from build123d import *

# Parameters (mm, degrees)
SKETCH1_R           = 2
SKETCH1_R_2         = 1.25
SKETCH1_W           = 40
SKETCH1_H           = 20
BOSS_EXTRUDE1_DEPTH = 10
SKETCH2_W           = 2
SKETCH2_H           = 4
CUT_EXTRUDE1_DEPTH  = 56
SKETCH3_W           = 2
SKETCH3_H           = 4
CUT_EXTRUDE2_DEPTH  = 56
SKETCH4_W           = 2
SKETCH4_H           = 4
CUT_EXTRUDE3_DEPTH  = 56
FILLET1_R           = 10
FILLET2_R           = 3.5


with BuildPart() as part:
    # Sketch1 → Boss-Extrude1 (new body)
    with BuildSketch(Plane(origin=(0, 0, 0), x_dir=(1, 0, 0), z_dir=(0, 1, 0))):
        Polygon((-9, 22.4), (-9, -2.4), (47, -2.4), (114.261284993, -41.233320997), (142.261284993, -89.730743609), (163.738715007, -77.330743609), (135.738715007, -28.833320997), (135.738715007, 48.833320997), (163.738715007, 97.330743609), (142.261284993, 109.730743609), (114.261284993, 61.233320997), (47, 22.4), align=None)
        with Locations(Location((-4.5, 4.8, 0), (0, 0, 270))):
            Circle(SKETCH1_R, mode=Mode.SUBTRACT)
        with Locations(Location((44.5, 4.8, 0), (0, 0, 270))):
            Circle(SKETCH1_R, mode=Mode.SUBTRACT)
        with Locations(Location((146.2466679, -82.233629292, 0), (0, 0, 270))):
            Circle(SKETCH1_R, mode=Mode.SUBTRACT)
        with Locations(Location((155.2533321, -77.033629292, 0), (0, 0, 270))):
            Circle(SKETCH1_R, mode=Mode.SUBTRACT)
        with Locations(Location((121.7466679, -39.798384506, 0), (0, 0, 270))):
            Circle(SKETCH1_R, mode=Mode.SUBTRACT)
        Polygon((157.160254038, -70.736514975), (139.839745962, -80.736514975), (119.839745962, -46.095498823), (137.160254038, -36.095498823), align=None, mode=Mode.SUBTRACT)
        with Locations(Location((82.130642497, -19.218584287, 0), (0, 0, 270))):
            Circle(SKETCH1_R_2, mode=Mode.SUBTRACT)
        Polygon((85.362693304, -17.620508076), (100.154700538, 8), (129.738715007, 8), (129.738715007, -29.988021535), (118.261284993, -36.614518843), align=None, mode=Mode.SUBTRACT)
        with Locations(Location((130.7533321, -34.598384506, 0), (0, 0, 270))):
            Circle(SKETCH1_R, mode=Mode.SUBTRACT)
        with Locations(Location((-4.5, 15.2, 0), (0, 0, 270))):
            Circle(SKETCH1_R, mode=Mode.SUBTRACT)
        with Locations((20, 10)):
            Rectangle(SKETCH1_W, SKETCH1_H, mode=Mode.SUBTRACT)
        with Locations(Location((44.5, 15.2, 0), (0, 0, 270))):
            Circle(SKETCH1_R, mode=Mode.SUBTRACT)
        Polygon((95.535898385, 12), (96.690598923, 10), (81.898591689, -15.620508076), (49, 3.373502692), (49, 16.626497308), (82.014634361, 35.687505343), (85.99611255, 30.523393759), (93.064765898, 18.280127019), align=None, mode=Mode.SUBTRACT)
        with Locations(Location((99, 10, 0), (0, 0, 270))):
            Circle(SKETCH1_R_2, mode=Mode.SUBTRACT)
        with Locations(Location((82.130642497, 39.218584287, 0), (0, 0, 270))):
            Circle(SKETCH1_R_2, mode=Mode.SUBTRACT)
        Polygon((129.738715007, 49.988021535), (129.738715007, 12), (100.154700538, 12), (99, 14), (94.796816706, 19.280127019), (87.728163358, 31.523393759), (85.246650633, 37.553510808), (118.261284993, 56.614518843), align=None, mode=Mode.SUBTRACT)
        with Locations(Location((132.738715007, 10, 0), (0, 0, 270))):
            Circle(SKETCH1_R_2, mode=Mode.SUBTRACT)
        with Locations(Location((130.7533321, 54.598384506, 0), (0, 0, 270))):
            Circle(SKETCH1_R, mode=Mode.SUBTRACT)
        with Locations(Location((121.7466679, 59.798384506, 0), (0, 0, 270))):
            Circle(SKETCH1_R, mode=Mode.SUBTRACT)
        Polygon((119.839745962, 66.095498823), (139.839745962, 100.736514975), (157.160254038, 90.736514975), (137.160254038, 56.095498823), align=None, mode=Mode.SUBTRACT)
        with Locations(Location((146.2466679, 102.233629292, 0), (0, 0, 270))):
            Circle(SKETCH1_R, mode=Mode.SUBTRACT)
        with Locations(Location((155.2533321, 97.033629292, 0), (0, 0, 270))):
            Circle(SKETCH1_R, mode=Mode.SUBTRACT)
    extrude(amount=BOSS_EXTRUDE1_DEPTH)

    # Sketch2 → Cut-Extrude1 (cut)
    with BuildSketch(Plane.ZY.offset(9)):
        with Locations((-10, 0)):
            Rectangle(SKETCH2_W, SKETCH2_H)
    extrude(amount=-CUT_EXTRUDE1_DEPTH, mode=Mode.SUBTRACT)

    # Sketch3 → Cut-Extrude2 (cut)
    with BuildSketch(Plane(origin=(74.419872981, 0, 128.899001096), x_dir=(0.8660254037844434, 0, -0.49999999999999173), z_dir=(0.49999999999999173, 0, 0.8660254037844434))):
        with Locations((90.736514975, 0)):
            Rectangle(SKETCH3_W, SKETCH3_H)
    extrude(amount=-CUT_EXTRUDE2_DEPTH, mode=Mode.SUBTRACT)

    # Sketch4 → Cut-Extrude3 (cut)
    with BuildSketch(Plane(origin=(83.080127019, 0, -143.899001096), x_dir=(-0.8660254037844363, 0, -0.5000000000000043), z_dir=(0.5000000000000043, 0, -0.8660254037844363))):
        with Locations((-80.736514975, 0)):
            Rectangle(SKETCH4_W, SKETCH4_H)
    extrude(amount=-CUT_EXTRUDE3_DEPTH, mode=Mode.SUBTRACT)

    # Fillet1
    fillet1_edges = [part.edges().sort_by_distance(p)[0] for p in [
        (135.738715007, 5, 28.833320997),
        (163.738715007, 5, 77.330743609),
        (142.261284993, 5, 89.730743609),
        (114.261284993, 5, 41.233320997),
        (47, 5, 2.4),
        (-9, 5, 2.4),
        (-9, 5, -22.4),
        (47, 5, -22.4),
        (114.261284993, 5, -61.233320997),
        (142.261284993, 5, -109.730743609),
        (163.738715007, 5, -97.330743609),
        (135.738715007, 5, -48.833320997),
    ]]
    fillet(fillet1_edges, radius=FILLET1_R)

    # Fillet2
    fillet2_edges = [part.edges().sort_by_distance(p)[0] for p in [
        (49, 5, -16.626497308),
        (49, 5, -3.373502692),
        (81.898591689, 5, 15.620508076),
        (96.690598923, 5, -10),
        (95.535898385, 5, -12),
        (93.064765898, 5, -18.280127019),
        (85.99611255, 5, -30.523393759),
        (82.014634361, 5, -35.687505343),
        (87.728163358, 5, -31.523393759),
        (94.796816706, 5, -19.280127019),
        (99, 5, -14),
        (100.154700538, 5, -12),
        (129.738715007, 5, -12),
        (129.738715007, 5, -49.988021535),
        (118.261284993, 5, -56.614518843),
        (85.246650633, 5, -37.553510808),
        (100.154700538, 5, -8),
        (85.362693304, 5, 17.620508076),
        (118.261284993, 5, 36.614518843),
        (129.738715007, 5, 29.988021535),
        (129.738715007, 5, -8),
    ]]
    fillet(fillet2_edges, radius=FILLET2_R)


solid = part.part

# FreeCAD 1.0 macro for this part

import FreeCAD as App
import Part
import Sketcher

V = App.Vector
Q = App.Units.Quantity


def edges_at(feature, points):
    """Names of the edges that pass closest to the given points."""
    edges = feature.Shape.Edges
    near = lambda p: min(range(len(edges)), key=lambda i: edges[i].distToShape(Part.Vertex(*p))[0])
    return sorted({f"Edge{near(p) + 1}" for p in points})


def add_polygon(sketch, points):
    """Adds a closed chain of lines whose ends are joined by coincident constraints."""
    first, n = sketch.GeometryCount, len(points)
    for a, b in zip(points, points[1:] + points[:1]):
        sketch.addGeometry(Part.LineSegment(App.Vector(*a, 0), App.Vector(*b, 0)), False)
    for i in range(n):
        sketch.addConstraint(Sketcher.Constraint("Coincident", first + i, 2, first + (i + 1) % n, 1))

doc = App.newDocument("Part")
body = doc.addObject("PartDesign::Body", "Body")

sketch1 = doc.addObject("Sketcher::SketchObject", "Sketch")
body.addObject(sketch1)
sketch1.AttachmentSupport = (doc.XZ_Plane, [""])
sketch1.MapMode = "FlatFace"
add_polygon(sketch1, [(-9, -22.4), (-9, 2.4), (47, 2.4), (114.3, 41.2), (142.3, 89.7), (163.7, 77.3), (135.7, 28.8), (135.7, -48.8), (163.7, -97.3), (142.3, -109.7), (114.3, -61.2), (47, -22.4)])
sketch1.addGeometry(Part.Circle(V(-4.5, -4.8, 0), V(0, 0, 1), 2), False)
sketch1.addGeometry(Part.Circle(V(44.5, -4.8, 0), V(0, 0, 1), 2), False)
sketch1.addGeometry(Part.Circle(V(146.2, 82.2, 0), V(0, 0, 1), 2), False)
sketch1.addGeometry(Part.Circle(V(155.3, 77, 0), V(0, 0, 1), 2), False)
sketch1.addGeometry(Part.Circle(V(121.7, 39.8, 0), V(0, 0, 1), 2), False)
add_polygon(sketch1, [(137.2, 36.1), (157.2, 70.7), (139.8, 80.7), (119.8, 46.1)])
sketch1.addGeometry(Part.Circle(V(82.1, 19.2, 0), V(0, 0, 1), 1.2), False)
add_polygon(sketch1, [(118.3, 36.6), (85.4, 17.6), (100.2, -8), (129.7, -8), (129.7, 30)])
sketch1.addGeometry(Part.Circle(V(130.8, 34.6, 0), V(0, 0, 1), 2), False)
sketch1.addGeometry(Part.Circle(V(-4.5, -15.2, 0), V(0, 0, 1), 2), False)
add_polygon(sketch1, [(40, 0), (0, 0), (0, -20), (40, -20)])
sketch1.addGeometry(Part.Circle(V(44.5, -15.2, 0), V(0, 0, 1), 2), False)
add_polygon(sketch1, [(93.1, -18.3), (95.5, -12), (96.7, -10), (81.9, 15.6), (49, -3.4), (49, -16.6), (82, -35.7), (86, -30.5)])
sketch1.addGeometry(Part.Circle(V(99, -10, 0), V(0, 0, 1), 1.2), False)
sketch1.addGeometry(Part.Circle(V(82.1, -39.2, 0), V(0, 0, 1), 1.2), False)
add_polygon(sketch1, [(118.3, -56.6), (129.7, -50), (129.7, -12), (100.2, -12), (99, -14), (94.8, -19.3), (87.7, -31.5), (85.2, -37.6)])
sketch1.addGeometry(Part.Circle(V(132.7, -10, 0), V(0, 0, 1), 1.2), False)
sketch1.addGeometry(Part.Circle(V(130.8, -54.6, 0), V(0, 0, 1), 2), False)
sketch1.addGeometry(Part.Circle(V(121.7, -59.8, 0), V(0, 0, 1), 2), False)
add_polygon(sketch1, [(137.2, -56.1), (119.8, -66.1), (139.8, -100.7), (157.2, -90.7)])
sketch1.addGeometry(Part.Circle(V(146.2, -102.2, 0), V(0, 0, 1), 2), False)
sketch1.addGeometry(Part.Circle(V(155.3, -97, 0), V(0, 0, 1), 2), False)
sketch1.addConstraint([
    Sketcher.Constraint("Vertical", 0),
    Sketcher.Constraint("Horizontal", 1),
    Sketcher.Constraint("Vertical", 6),
    Sketcher.Constraint("Horizontal", 11),
    Sketcher.Constraint("Horizontal", 24),
    Sketcher.Constraint("Vertical", 25),
    Sketcher.Constraint("Horizontal", 29),
    Sketcher.Constraint("Vertical", 30),
    Sketcher.Constraint("Horizontal", 31),
    Sketcher.Constraint("Vertical", 32),
    Sketcher.Constraint("Vertical", 38),
    Sketcher.Constraint("Vertical", 45),
    Sketcher.Constraint("Horizontal", 46),
    Sketcher.Constraint("Coincident", 29, 2, -1, 1),
    Sketcher.Constraint("Equal", 12, 13),
    Sketcher.Constraint("Equal", 13, 14),
    Sketcher.Constraint("Equal", 14, 15),
    Sketcher.Constraint("Equal", 15, 16),
    Sketcher.Constraint("Equal", 16, 27),
    Sketcher.Constraint("Equal", 27, 28),
    Sketcher.Constraint("Equal", 28, 33),
    Sketcher.Constraint("Equal", 21, 42),
    Sketcher.Constraint("Equal", 42, 43),
    Sketcher.Constraint("Equal", 43, 52),
    Sketcher.Constraint("Equal", 33, 53),
    Sketcher.Constraint("Equal", 53, 54),
    Sketcher.Constraint("Equal", 54, 59),
    Sketcher.Constraint("Equal", 59, 60),
    Sketcher.Constraint("Perpendicular", 3, 4),
    Sketcher.Constraint("Perpendicular", 4, 5),
    Sketcher.Constraint("Perpendicular", 2, 7),
    Sketcher.Constraint("Perpendicular", 7, 8),
    Sketcher.Constraint("Perpendicular", 8, 9),
    Sketcher.Constraint("Perpendicular", 5, 10),
    Sketcher.Constraint("Perpendicular", 10, 17),
    Sketcher.Constraint("Perpendicular", 17, 18),
    Sketcher.Constraint("Perpendicular", 18, 19),
    Sketcher.Constraint("Perpendicular", 19, 20),
    Sketcher.Constraint("Perpendicular", 9, 22),
    Sketcher.Constraint("Perpendicular", 22, 23),
    Sketcher.Constraint("Parallel", 20, 26),
    Sketcher.Constraint("Perpendicular", 26, 35),
    Sketcher.Constraint("Parallel", 23, 36),
    Sketcher.Constraint("Perpendicular", 36, 37),
    Sketcher.Constraint("Perpendicular", 35, 39),
    Sketcher.Constraint("Perpendicular", 39, 41),
    Sketcher.Constraint("Parallel", 37, 44),
    Sketcher.Constraint("Parallel", 41, 47),
    Sketcher.Constraint("Parallel", 47, 49),
    Sketcher.Constraint("Perpendicular", 49, 51),
    Sketcher.Constraint("Parallel", 44, 55),
    Sketcher.Constraint("Perpendicular", 55, 56),
    Sketcher.Constraint("Perpendicular", 56, 57),
    Sketcher.Constraint("Perpendicular", 57, 58),
    Sketcher.Constraint("Horizontal", 12, 3, 13, 3),
    Sketcher.Constraint("Horizontal", 28, 3, 33, 3),
    Sketcher.Constraint("Horizontal", 42, 3, 52, 3),
    Sketcher.Constraint("Horizontal", 52, 3, 35, 2),
    Sketcher.Constraint("Horizontal", 34, 2, 45, 2),
    Sketcher.Constraint("Vertical", 12, 3, 28, 3),
    Sketcher.Constraint("Vertical", 13, 3, 33, 3),
    Sketcher.Constraint("Vertical", 21, 3, 43, 3),
    Sketcher.Constraint("Vertical", 27, 3, 53, 3),
    Sketcher.Constraint("Vertical", 16, 3, 54, 3),
    Sketcher.Constraint("Vertical", 14, 3, 59, 3),
    Sketcher.Constraint("Vertical", 15, 3, 60, 3),
    Sketcher.Constraint("Vertical", 4, 2, 7, 2),
    Sketcher.Constraint("Vertical", 3, 2, 8, 2),
    Sketcher.Constraint("Vertical", 2, 2, 9, 2),
    Sketcher.Constraint("Vertical", 1, 2, 10, 2),
    Sketcher.Constraint("Vertical", 25, 2, 44, 2),
    Sketcher.Constraint("Vertical", 23, 2, 46, 2),
    Sketcher.Constraint("Vertical", 42, 3, 47, 2),
    Sketcher.Constraint("Vertical", 26, 2, 51, 2),
    Sketcher.Constraint("Vertical", 19, 2, 55, 2),
    Sketcher.Constraint("Vertical", 18, 2, 56, 2),
    Sketcher.Constraint("Vertical", 17, 2, 57, 2),
    Sketcher.Constraint("Equal", 25, 45),
    Sketcher.Constraint("Equal", 3, 5),
    Sketcher.Constraint("Equal", 5, 7),
    Sketcher.Constraint("Equal", 23, 36),
    Sketcher.Constraint("Equal", 22, 37),
    Sketcher.Constraint("Equal", 35, 47),
    Sketcher.Constraint("Equal", 34, 48),
    Sketcher.Constraint("Equal", 41, 49),
    Sketcher.Constraint("Equal", 40, 50),
    Sketcher.Constraint("Equal", 39, 51),
    Sketcher.Constraint("Diameter", 12, Q("4 mm")),
    Sketcher.Constraint("Diameter", 21, Q("2.5 mm")),
    Sketcher.Constraint("DistanceX", 1, 1, 1, 2, Q("56 mm")),
    Sketcher.Constraint("DistanceX", 29, 2, 29, 1, Q("40 mm")),
    Sketcher.Constraint("DistanceY", 30, 2, 30, 1, Q("20 mm")),
    Sketcher.Constraint("Angle", 2, Q("30 deg")),
    Sketcher.Constraint("Distance", 3, Q("56 mm")),
    Sketcher.Constraint("Distance", 17, Q("40 mm")),
    Sketcher.Constraint("Distance", 18, Q("20 mm")),
    Sketcher.Constraint("DistanceY", 0, 1, 0, 2, Q("24.8 mm")),
    Sketcher.Constraint("DistanceX", -1, 1, 42, 3, Q("99 mm")),
    Sketcher.Constraint("DistanceY", 42, 3, -1, 1, Q("10 mm")),
    Sketcher.Constraint("DistanceX", 0, 2, -1, 1, Q("9 mm")),
    Sketcher.Constraint("DistanceY", 23, 2, -1, 1, Q("8 mm")),
    Sketcher.Constraint("DistanceY", 34, 2, -1, 1, Q("12 mm")),
    Sketcher.Constraint("DistanceX", -1, 1, 37, 2, Q("49 mm")),
    Sketcher.Constraint("Distance", 4, Q("24.8 mm")),
    Sketcher.Constraint("DistanceX", 12, 3, -1, 1, Q("4.5 mm")),
    Sketcher.Constraint("DistanceY", 12, 3, -1, 1, Q("4.8 mm")),
    Sketcher.Constraint("DistanceX", -1, 1, 13, 3, Q("44.5 mm")),
    Sketcher.Constraint("DistanceY", 28, 3, -1, 1, Q("15.2 mm")),
    Sketcher.Constraint("DistanceY", -1, 1, 0, 2, Q("2.4 mm")),
    Sketcher.Constraint("DistanceY", 6, 2, 6, 1, Q("77.666642 mm")),
    Sketcher.Constraint("DistanceY", 25, 1, 25, 2, Q("37.988022 mm")),
    Sketcher.Constraint("DistanceY", -1, 1, 19, 2, Q("46.095499 mm")),
    Sketcher.Constraint("DistanceX", -1, 1, 34, 2, Q("95.535898 mm")),
    Sketcher.Constraint("DistanceY", 55, 2, -1, 1, Q("66.095499 mm")),
    Sketcher.Constraint("Distance", 22, Q("37.988022 mm")),
    Sketcher.Constraint("DistanceY", 38, 2, 38, 1, Q("13.252995 mm")),
    Sketcher.Constraint("DistanceY", -1, 1, 14, 3, Q("82.233629 mm")),
    Sketcher.Constraint("DistanceY", -1, 1, 15, 3, Q("77.033629 mm")),
    Sketcher.Constraint("DistanceY", 59, 3, -1, 1, Q("102.233629 mm")),
    Sketcher.Constraint("DistanceY", 60, 3, -1, 1, Q("97.033629 mm")),
    Sketcher.Constraint("DistanceX", -1, 1, 50, 2, Q("85.246651 mm")),
    Sketcher.Constraint("Distance", 34, Q("6.748814 mm")),
    Sketcher.Constraint("Distance", 40, Q("6.520753 mm")),
    Sketcher.Constraint("Distance", 41, Q("14.137307 mm")),
    Sketcher.Constraint("DistanceX", -1, 1, 14, 3, Q("146.246668 mm")),
    Sketcher.Constraint("DistanceX", -1, 1, 15, 3, Q("155.253332 mm")),
    Sketcher.Constraint("DistanceX", -1, 1, 16, 3, Q("121.746668 mm")),
    Sketcher.Constraint("DistanceY", -1, 1, 16, 3, Q("39.798385 mm")),
    Sketcher.Constraint("DistanceX", -1, 1, 21, 3, Q("82.130642 mm")),
    Sketcher.Constraint("DistanceY", -1, 1, 21, 3, Q("19.218584 mm")),
    Sketcher.Constraint("DistanceX", -1, 1, 27, 3, Q("130.753332 mm")),
    Sketcher.Constraint("DistanceY", -1, 1, 27, 3, Q("34.598385 mm")),
    Sketcher.Constraint("DistanceY", 43, 3, -1, 1, Q("39.218584 mm")),
    Sketcher.Constraint("DistanceX", -1, 1, 52, 3, Q("132.738715 mm")),
    Sketcher.Constraint("DistanceY", 53, 3, -1, 1, Q("54.598385 mm")),
    Sketcher.Constraint("DistanceY", 54, 3, -1, 1, Q("59.798385 mm")),
    Sketcher.Constraint("DistanceX", -1, 1, 17, 2, Q("157.160254 mm")),
])
pad1 = doc.addObject("PartDesign::Pad", "Pad")
body.addObject(pad1)
pad1.Profile = sketch1
pad1.Length = 10
pad1.Reversed = True

sketch2 = doc.addObject("Sketcher::SketchObject", "Sketch001")
body.addObject(sketch2)
sketch2.AttachmentSupport = (doc.YZ_Plane, [""])
sketch2.MapMode = "FlatFace"
sketch2.AttachmentOffset = App.Placement(V(0, 0, -9), App.Rotation())
add_polygon(sketch2, [(2, -11), (-2, -11), (-2, -9), (2, -9)])
sketch2.addConstraint([
    Sketcher.Constraint("Horizontal", 0),
    Sketcher.Constraint("Vertical", 1),
    Sketcher.Constraint("Horizontal", 2),
    Sketcher.Constraint("Vertical", 3),
    Sketcher.Constraint("DistanceX", 0, 2, 0, 1, Q("4 mm")),
    Sketcher.Constraint("DistanceY", 1, 1, 1, 2, Q("2 mm")),
    Sketcher.Constraint("DistanceX", 0, 2, -1, 1, Q("2 mm")),
    Sketcher.Constraint("DistanceY", 0, 2, -1, 1, Q("11 mm")),
])
pocket1 = doc.addObject("PartDesign::Pocket", "Pocket")
body.addObject(pocket1)
pocket1.Profile = sketch2
pocket1.Length = 56
pocket1.Reversed = True

sketch3 = doc.addObject("Sketcher::SketchObject", "Sketch002")
body.addObject(sketch3)
sketch3.Placement = App.Placement(V(74.419873, 0, 128.899001), App.Rotation(V(0.866025404, 0, -0.5), V(0, 1, 0), V(0.5, 0, 0.866025404), "ZXY"))
add_polygon(sketch3, [(89.7, 2), (89.7, -2), (91.7, -2), (91.7, 2)])
sketch3.addConstraint([
    Sketcher.Constraint("Vertical", 0),
    Sketcher.Constraint("Horizontal", 1),
    Sketcher.Constraint("Vertical", 2),
    Sketcher.Constraint("Horizontal", 3),
    Sketcher.Constraint("DistanceX", 1, 1, 1, 2, Q("2 mm")),
    Sketcher.Constraint("DistanceY", 0, 2, 0, 1, Q("4 mm")),
    Sketcher.Constraint("DistanceY", 0, 2, -1, 1, Q("2 mm")),
    Sketcher.Constraint("DistanceX", -1, 1, 0, 2, Q("89.736515 mm")),
])
pocket2 = doc.addObject("PartDesign::Pocket", "Pocket001")
body.addObject(pocket2)
pocket2.Profile = sketch3
pocket2.Length = 56

sketch4 = doc.addObject("Sketcher::SketchObject", "Sketch003")
body.addObject(sketch4)
sketch4.Placement = App.Placement(V(83.080127, 0, -143.899001), App.Rotation(V(-0.866025404, 0, -0.5), V(0, 1, 0), V(0.5, 0, -0.866025404), "ZXY"))
add_polygon(sketch4, [(-81.7, 2), (-81.7, -2), (-79.7, -2), (-79.7, 2)])
sketch4.addConstraint([
    Sketcher.Constraint("Vertical", 0),
    Sketcher.Constraint("Horizontal", 1),
    Sketcher.Constraint("Vertical", 2),
    Sketcher.Constraint("Horizontal", 3),
    Sketcher.Constraint("DistanceX", 1, 1, 1, 2, Q("2 mm")),
    Sketcher.Constraint("DistanceY", 0, 2, 0, 1, Q("4 mm")),
    Sketcher.Constraint("DistanceY", 0, 2, -1, 1, Q("2 mm")),
    Sketcher.Constraint("DistanceX", 0, 2, -1, 1, Q("81.736515 mm")),
])
pocket3 = doc.addObject("PartDesign::Pocket", "Pocket002")
body.addObject(pocket3)
pocket3.Profile = sketch4
pocket3.Length = 56
doc.recompute()

fillet = doc.addObject("PartDesign::Fillet", "Fillet")
body.addObject(fillet)
fillet.Base = (pocket3, edges_at(pocket3, [
    (135.739, 5, 28.833),
    (163.739, 5, 77.331),
    (142.261, 5, 89.731),
    (114.261, 5, 41.233),
    (47, 5, 2.4),
    (-9, 5, 2.4),
    (-9, 5, -22.4),
    (47, 5, -22.4),
    (114.261, 5, -61.233),
    (142.261, 5, -109.731),
    (163.739, 5, -97.331),
    (135.739, 5, -48.833),
]))
fillet.Radius = 10
doc.recompute()

fillet2 = doc.addObject("PartDesign::Fillet", "Fillet001")
body.addObject(fillet2)
fillet2.Base = (fillet, edges_at(fillet, [
    (49, 5, -16.626),
    (49, 5, -3.374),
    (81.899, 5, 15.621),
    (96.691, 5, -10),
    (95.536, 5, -12),
    (93.065, 5, -18.28),
    (85.996, 5, -30.523),
    (82.015, 5, -35.688),
    (87.728, 5, -31.523),
    (94.797, 5, -19.28),
    (99, 5, -14),
    (100.155, 5, -12),
    (129.739, 5, -12),
    (129.739, 5, -49.988),
    (118.261, 5, -56.615),
    (85.247, 5, -37.554),
    (100.155, 5, -8),
    (85.363, 5, 17.621),
    (118.261, 5, 36.615),
    (129.739, 5, 29.988),
    (129.739, 5, -8),
]))
fillet2.Radius = 3.5

doc.recompute()
